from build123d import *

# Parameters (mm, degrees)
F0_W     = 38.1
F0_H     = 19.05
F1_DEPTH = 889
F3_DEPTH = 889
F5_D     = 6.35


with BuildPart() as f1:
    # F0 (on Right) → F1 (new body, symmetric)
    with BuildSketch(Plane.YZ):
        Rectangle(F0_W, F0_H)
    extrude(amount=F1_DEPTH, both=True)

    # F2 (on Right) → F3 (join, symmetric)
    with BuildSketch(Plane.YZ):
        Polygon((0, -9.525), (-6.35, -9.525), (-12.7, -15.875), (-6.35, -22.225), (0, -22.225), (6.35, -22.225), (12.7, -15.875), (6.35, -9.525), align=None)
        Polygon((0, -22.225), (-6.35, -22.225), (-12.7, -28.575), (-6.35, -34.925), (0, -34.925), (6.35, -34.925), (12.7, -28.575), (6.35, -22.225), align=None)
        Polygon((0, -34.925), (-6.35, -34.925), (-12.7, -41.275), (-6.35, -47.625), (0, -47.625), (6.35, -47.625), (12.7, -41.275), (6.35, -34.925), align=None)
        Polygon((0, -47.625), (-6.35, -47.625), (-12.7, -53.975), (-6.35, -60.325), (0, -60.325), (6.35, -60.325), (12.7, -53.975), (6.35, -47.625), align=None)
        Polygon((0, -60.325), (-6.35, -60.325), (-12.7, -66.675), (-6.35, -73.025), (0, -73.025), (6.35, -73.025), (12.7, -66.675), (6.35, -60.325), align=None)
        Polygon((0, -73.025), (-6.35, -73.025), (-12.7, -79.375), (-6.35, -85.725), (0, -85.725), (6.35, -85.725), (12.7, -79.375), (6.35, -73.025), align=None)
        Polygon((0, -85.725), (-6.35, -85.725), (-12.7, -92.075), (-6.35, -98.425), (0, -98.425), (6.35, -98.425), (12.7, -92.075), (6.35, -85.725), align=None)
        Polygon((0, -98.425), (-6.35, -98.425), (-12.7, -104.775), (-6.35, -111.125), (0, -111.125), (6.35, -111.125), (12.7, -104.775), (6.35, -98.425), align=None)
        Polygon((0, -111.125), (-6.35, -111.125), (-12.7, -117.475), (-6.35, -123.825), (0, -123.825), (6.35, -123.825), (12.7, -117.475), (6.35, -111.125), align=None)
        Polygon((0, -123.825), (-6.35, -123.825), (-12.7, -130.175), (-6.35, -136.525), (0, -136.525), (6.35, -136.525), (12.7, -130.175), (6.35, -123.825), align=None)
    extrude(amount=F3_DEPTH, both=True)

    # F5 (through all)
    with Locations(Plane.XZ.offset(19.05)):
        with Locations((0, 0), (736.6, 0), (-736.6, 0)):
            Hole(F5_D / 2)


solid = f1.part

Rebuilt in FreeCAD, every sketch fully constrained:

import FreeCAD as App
import Part
import Sketcher
Q = App.Units.Quantity

doc = App.newDocument("Part")
body = doc.addObject("PartDesign::Body", "Body")

# Sketch on YZ plane
sketch1 = body.newObject("Sketcher::SketchObject", "Sketch")
sketch1.AttachmentSupport = (doc.getObject("YZ_Plane"), [""])
sketch1.MapMode = "FlatFace"
sketch1.addGeometry(Part.LineSegment(App.Vector(-19, 10, 0), App.Vector(-19, -10, 0)), False)
sketch1.addGeometry(Part.LineSegment(App.Vector(-19, -10, 0), App.Vector(19, -10, 0)), False)
sketch1.addGeometry(Part.LineSegment(App.Vector(19, -10, 0), App.Vector(19, 10, 0)), False)
sketch1.addGeometry(Part.LineSegment(App.Vector(19, 10, 0), App.Vector(-19, 10, 0)), False)
sketch1.addConstraint(Sketcher.Constraint("Coincident", 0, 2, 1, 1))
sketch1.addConstraint(Sketcher.Constraint("Coincident", 1, 2, 2, 1))
sketch1.addConstraint(Sketcher.Constraint("Coincident", 2, 2, 3, 1))
sketch1.addConstraint(Sketcher.Constraint("Coincident", 3, 2, 0, 1))
sketch1.addConstraint(Sketcher.Constraint("Vertical", 0))
sketch1.addConstraint(Sketcher.Constraint("Horizontal", 1))
sketch1.addConstraint(Sketcher.Constraint("Vertical", 2))
sketch1.addConstraint(Sketcher.Constraint("Horizontal", 3))
sketch1.addConstraint(Sketcher.Constraint("Symmetric", 0, 2, 2, 2, -1, 1))
sketch1.addConstraint(Sketcher.Constraint("DistanceX", 1, 1, 1, 2, Q("1.5 in")))
sketch1.addConstraint(Sketcher.Constraint("DistanceY", 0, 2, 0, 1, Q("0.75 in")))
pad1 = body.newObject("PartDesign::Pad", "Pad")
pad1.Profile = sketch1
pad1.Length = Q("70 in")
pad1.Midplane = True

# Sketch on YZ plane
sketch2 = body.newObject("Sketcher::SketchObject", "Sketch001")
sketch2.AttachmentSupport = (doc.getObject("YZ_Plane"), [""])
sketch2.MapMode = "FlatFace"
sketch2.addGeometry(Part.LineSegment(App.Vector(-6, -10, 0), App.Vector(-13, -16, 0)), False)
sketch2.addGeometry(Part.LineSegment(App.Vector(-13, -16, 0), App.Vector(-6, -22, 0)), False)
sketch2.addGeometry(Part.LineSegment(App.Vector(-6, -22, 0), App.Vector(-13, -29, 0)), False)
sketch2.addGeometry(Part.LineSegment(App.Vector(-13, -29, 0), App.Vector(-6, -35, 0)), False)
sketch2.addGeometry(Part.LineSegment(App.Vector(-6, -35, 0), App.Vector(-13, -41, 0)), False)
sketch2.addGeometry(Part.LineSegment(App.Vector(-13, -41, 0), App.Vector(-6, -48, 0)), False)
sketch2.addGeometry(Part.LineSegment(App.Vector(-6, -48, 0), App.Vector(-13, -54, 0)), False)
sketch2.addGeometry(Part.LineSegment(App.Vector(-13, -54, 0), App.Vector(-6, -60, 0)), False)
sketch2.addGeometry(Part.LineSegment(App.Vector(-6, -60, 0), App.Vector(-13, -67, 0)), False)
sketch2.addGeometry(Part.LineSegment(App.Vector(-13, -67, 0), App.Vector(-6, -73, 0)), False)
sketch2.addGeometry(Part.LineSegment(App.Vector(-6, -73, 0), App.Vector(-13, -79, 0)), False)
sketch2.addGeometry(Part.LineSegment(App.Vector(-13, -79, 0), App.Vector(-6, -86, 0)), False)
sketch2.addGeometry(Part.LineSegment(App.Vector(-6, -86, 0), App.Vector(-13, -92, 0)), False)
sketch2.addGeometry(Part.LineSegment(App.Vector(-13, -92, 0), App.Vector(-6, -98, 0)), False)
sketch2.addGeometry(Part.LineSegment(App.Vector(-6, -98, 0), App.Vector(-13, -105, 0)), False)
sketch2.addGeometry(Part.LineSegment(App.Vector(-13, -105, 0), App.Vector(-6, -111, 0)), False)
sketch2.addGeometry(Part.LineSegment(App.Vector(-6, -111, 0), App.Vector(-13, -117, 0)), False)
sketch2.addGeometry(Part.LineSegment(App.Vector(-13, -117, 0), App.Vector(-6, -124, 0)), False)
sketch2.addGeometry(Part.LineSegment(App.Vector(-6, -124, 0), App.Vector(-13, -130, 0)), False)
sketch2.addGeometry(Part.LineSegment(App.Vector(-13, -130, 0), App.Vector(-6, -137, 0)), False)
sketch2.addGeometry(Part.LineSegment(App.Vector(-6, -137, 0), App.Vector(6, -137, 0)), False)
sketch2.addGeometry(Part.LineSegment(App.Vector(6, -137, 0), App.Vector(13, -130, 0)), False)
sketch2.addGeometry(Part.LineSegment(App.Vector(13, -130, 0), App.Vector(6, -124, 0)), False)
sketch2.addGeometry(Part.LineSegment(App.Vector(6, -124, 0), App.Vector(13, -117, 0)), False)
sketch2.addGeometry(Part.LineSegment(App.Vector(13, -117, 0), App.Vector(6, -111, 0)), False)
sketch2.addGeometry(Part.LineSegment(App.Vector(6, -111, 0), App.Vector(13, -105, 0)), False)
sketch2.addGeometry(Part.LineSegment(App.Vector(13, -105, 0), App.Vector(6, -98, 0)), False)
sketch2.addGeometry(Part.LineSegment(App.Vector(6, -98, 0), App.Vector(13, -92, 0)), False)
sketch2.addGeometry(Part.LineSegment(App.Vector(13, -92, 0), App.Vector(6, -86, 0)), False)
sketch2.addGeometry(Part.LineSegment(App.Vector(6, -86, 0), App.Vector(13, -79, 0)), False)
sketch2.addGeometry(Part.LineSegment(App.Vector(13, -79, 0), App.Vector(6, -73, 0)), False)
sketch2.addGeometry(Part.LineSegment(App.Vector(6, -73, 0), App.Vector(13, -67, 0)), False)
sketch2.addGeometry(Part.LineSegment(App.Vector(13, -67, 0), App.Vector(6, -60, 0)), False)
sketch2.addGeometry(Part.LineSegment(App.Vector(6, -60, 0), App.Vector(13, -54, 0)), False)
sketch2.addGeometry(Part.LineSegment(App.Vector(13, -54, 0), App.Vector(6, -48, 0)), False)
sketch2.addGeometry(Part.LineSegment(App.Vector(6, -48, 0), App.Vector(13, -41, 0)), False)
sketch2.addGeometry(Part.LineSegment(App.Vector(13, -41, 0), App.Vector(6, -35, 0)), False)
sketch2.addGeometry(Part.LineSegment(App.Vector(6, -35, 0), App.Vector(13, -29, 0)), False)
sketch2.addGeometry(Part.LineSegment(App.Vector(13, -29, 0), App.Vector(6, -22, 0)), False)
sketch2.addGeometry(Part.LineSegment(App.Vector(6, -22, 0), App.Vector(13, -16, 0)), False)
sketch2.addGeometry(Part.LineSegment(App.Vector(13, -16, 0), App.Vector(6, -10, 0)), False)
sketch2.addGeometry(Part.LineSegment(App.Vector(6, -10, 0), App.Vector(-6, -10, 0)), False)
sketch2.addConstraint(Sketcher.Constraint("Coincident", 0, 2, 1, 1))
sketch2.addConstraint(Sketcher.Constraint("Coincident", 1, 2, 2, 1))
sketch2.addConstraint(Sketcher.Constraint("Coincident", 2, 2, 3, 1))
sketch2.addConstraint(Sketcher.Constraint("Coincident", 3, 2, 4, 1))
sketch2.addConstraint(Sketcher.Constraint("Coincident", 4, 2, 5, 1))
sketch2.addConstraint(Sketcher.Constraint("Coincident", 5, 2, 6, 1))
sketch2.addConstraint(Sketcher.Constraint("Coincident", 6, 2, 7, 1))
sketch2.addConstraint(Sketcher.Constraint("Coincident", 7, 2, 8, 1))
sketch2.addConstraint(Sketcher.Constraint("Coincident", 8, 2, 9, 1))
sketch2.addConstraint(Sketcher.Constraint("Coincident", 9, 2, 10, 1))
sketch2.addConstraint(Sketcher.Constraint("Coincident", 10, 2, 11, 1))
sketch2.addConstraint(Sketcher.Constraint("Coincident", 11, 2, 12, 1))
sketch2.addConstraint(Sketcher.Constraint("Coincident", 12, 2, 13, 1))
sketch2.addConstraint(Sketcher.Constraint("Coincident", 13, 2, 14, 1))
sketch2.addConstraint(Sketcher.Constraint("Coincident", 14, 2, 15, 1))
sketch2.addConstraint(Sketcher.Constraint("Coincident", 15, 2, 16, 1))
sketch2.addConstraint(Sketcher.Constraint("Coincident", 16, 2, 17, 1))
sketch2.addConstraint(Sketcher.Constraint("Coincident", 17, 2, 18, 1))
sketch2.addConstraint(Sketcher.Constraint("Coincident", 18, 2, 19, 1))
sketch2.addConstraint(Sketcher.Constraint("Coincident", 19, 2, 20, 1))
sketch2.addConstraint(Sketcher.Constraint("Coincident", 20, 2, 21, 1))
sketch2.addConstraint(Sketcher.Constraint("Coincident", 21, 2, 22, 1))
sketch2.addConstraint(Sketcher.Constraint("Coincident", 22, 2, 23, 1))
sketch2.addConstraint(Sketcher.Constraint("Coincident", 23, 2, 24, 1))
sketch2.addConstraint(Sketcher.Constraint("Coincident", 24, 2, 25, 1))
sketch2.addConstraint(Sketcher.Constraint("Coincident", 25, 2, 26, 1))
sketch2.addConstraint(Sketcher.Constraint("Coincident", 26, 2, 27, 1))
sketch2.addConstraint(Sketcher.Constraint("Coincident", 27, 2, 28, 1))
sketch2.addConstraint(Sketcher.Constraint("Coincident", 28, 2, 29, 1))
sketch2.addConstraint(Sketcher.Constraint("Coincident", 29, 2, 30, 1))
sketch2.addConstraint(Sketcher.Constraint("Coincident", 30, 2, 31, 1))
sketch2.addConstraint(Sketcher.Constraint("Coincident", 31, 2, 32, 1))
sketch2.addConstraint(Sketcher.Constraint("Coincident", 32, 2, 33, 1))
sketch2.addConstraint(Sketcher.Constraint("Coincident", 33, 2, 34, 1))
sketch2.addConstraint(Sketcher.Constraint("Coincident", 34, 2, 35, 1))
sketch2.addConstraint(Sketcher.Constraint("Coincident", 35, 2, 36, 1))
sketch2.addConstraint(Sketcher.Constraint("Coincident", 36, 2, 37, 1))
sketch2.addConstraint(Sketcher.Constraint("Coincident", 37, 2, 38, 1))
sketch2.addConstraint(Sketcher.Constraint("Coincident", 38, 2, 39, 1))
sketch2.addConstraint(Sketcher.Constraint("Coincident", 39, 2, 40, 1))
sketch2.addConstraint(Sketcher.Constraint("Coincident", 40, 2, 41, 1))
sketch2.addConstraint(Sketcher.Constraint("Coincident", 41, 2, 0, 1))
sketch2.addConstraint(Sketcher.Constraint("Horizontal", 20))
sketch2.addConstraint(Sketcher.Constraint("Horizontal", 41))
sketch2.addConstraint(Sketcher.Constraint("Symmetric", 18, 2, 21, 2, -2))
sketch2.addConstraint(Sketcher.Constraint("Symmetric", 17, 2, 22, 2, -2))
sketch2.addConstraint(Sketcher.Constraint("Symmetric", 16, 2, 23, 2, -2))
sketch2.addConstraint(Sketcher.Constraint("Symmetric", 15, 2, 24, 2, -2))
sketch2.addConstraint(Sketcher.Constraint("Symmetric", 14, 2, 25, 2, -2))
sketch2.addConstraint(Sketcher.Constraint("Symmetric", 13, 2, 26, 2, -2))
sketch2.addConstraint(Sketcher.Constraint("Symmetric", 12, 2, 27, 2, -2))
sketch2.addConstraint(Sketcher.Constraint("Symmetric", 11, 2, 28, 2, -2))
sketch2.addConstraint(Sketcher.Constraint("Symmetric", 10, 2, 29, 2, -2))
sketch2.addConstraint(Sketcher.Constraint("Symmetric", 9, 2, 30, 2, -2))
sketch2.addConstraint(Sketcher.Constraint("Symmetric", 8, 2, 31, 2, -2))
sketch2.addConstraint(Sketcher.Constraint("Symmetric", 7, 2, 32, 2, -2))
sketch2.addConstraint(Sketcher.Constraint("Symmetric", 6, 2, 33, 2, -2))
sketch2.addConstraint(Sketcher.Constraint("Symmetric", 5, 2, 34, 2, -2))
sketch2.addConstraint(Sketcher.Constraint("Symmetric", 4, 2, 35, 2, -2))
sketch2.addConstraint(Sketcher.Constraint("Symmetric", 3, 2, 36, 2, -2))
sketch2.addConstraint(Sketcher.Constraint("Symmetric", 2, 2, 37, 2, -2))
sketch2.addConstraint(Sketcher.Constraint("Symmetric", 1, 2, 38, 2, -2))
sketch2.addConstraint(Sketcher.Constraint("Symmetric", 0, 2, 39, 2, -2))
sketch2.addConstraint(Sketcher.Constraint("Perpendicular", 0, 1))
sketch2.addConstraint(Sketcher.Constraint("Perpendicular", 1, 2))
sketch2.addConstraint(Sketcher.Constraint("Perpendicular", 2, 3))
sketch2.addConstraint(Sketcher.Constraint("Perpendicular", 3, 4))
sketch2.addConstraint(Sketcher.Constraint("Perpendicular", 4, 5))
sketch2.addConstraint(Sketcher.Constraint("Perpendicular", 5, 6))
sketch2.addConstraint(Sketcher.Constraint("Perpendicular", 6, 7))
sketch2.addConstraint(Sketcher.Constraint("Perpendicular", 7, 8))
sketch2.addConstraint(Sketcher.Constraint("Perpendicular", 8, 9))
sketch2.addConstraint(Sketcher.Constraint("Perpendicular", 9, 10))
sketch2.addConstraint(Sketcher.Constraint("Perpendicular", 10, 11))
sketch2.addConstraint(Sketcher.Constraint("Perpendicular", 11, 12))
sketch2.addConstraint(Sketcher.Constraint("Perpendicular", 12, 13))
sketch2.addConstraint(Sketcher.Constraint("Perpendicular", 13, 14))
sketch2.addConstraint(Sketcher.Constraint("Perpendicular", 14, 15))
sketch2.addConstraint(Sketcher.Constraint("Perpendicular", 15, 16))
sketch2.addConstraint(Sketcher.Constraint("Perpendicular", 16, 17))
sketch2.addConstraint(Sketcher.Constraint("Perpendicular", 17, 18))
sketch2.addConstraint(Sketcher.Constraint("Perpendicular", 18, 19))
sketch2.addConstraint(Sketcher.Constraint("Perpendicular", 19, 21))
sketch2.addConstraint(Sketcher.Constraint("Perpendicular", 21, 22))
sketch2.addConstraint(Sketcher.Constraint("Perpendicular", 39, 40))
sketch2.addConstraint(Sketcher.Constraint("Vertical", 0, 2, 2, 2))
sketch2.addConstraint(Sketcher.Constraint("Vertical", 1, 2, 3, 2))
sketch2.addConstraint(Sketcher.Constraint("Vertical", 2, 2, 4, 2))
sketch2.addConstraint(Sketcher.Constraint("Vertical", 3, 2, 5, 2))
sketch2.addConstraint(Sketcher.Constraint("Vertical", 4, 2, 6, 2))
sketch2.addConstraint(Sketcher.Constraint("Vertical", 5, 2, 7, 2))
sketch2.addConstraint(Sketcher.Constraint("Vertical", 6, 2, 8, 2))
sketch2.addConstraint(Sketcher.Constraint("Vertical", 7, 2, 9, 2))
sketch2.addConstraint(Sketcher.Constraint("Vertical", 8, 2, 10, 2))
sketch2.addConstraint(Sketcher.Constraint("Vertical", 9, 2, 11, 2))
sketch2.addConstraint(Sketcher.Constraint("Vertical", 10, 2, 12, 2))
sketch2.addConstraint(Sketcher.Constraint("Vertical", 11, 2, 13, 2))
sketch2.addConstraint(Sketcher.Constraint("Vertical", 12, 2, 14, 2))
sketch2.addConstraint(Sketcher.Constraint("Vertical", 13, 2, 15, 2))
sketch2.addConstraint(Sketcher.Constraint("Vertical", 14, 2, 16, 2))
sketch2.addConstraint(Sketcher.Constraint("Vertical", 15, 2, 17, 2))
sketch2.addConstraint(Sketcher.Constraint("Vertical", 16, 2, 18, 2))
sketch2.addConstraint(Sketcher.Constraint("Vertical", 17, 2, 19, 2))
sketch2.addConstraint(Sketcher.Constraint("Vertical", 38, 2, 40, 2))
sketch2.addConstraint(Sketcher.Constraint("DistanceX", 20, 1, 20, 2, Q("0.5 in")))
sketch2.addConstraint(Sketcher.Constraint("DistanceY", 4, 2, 0, 2, Q("1 in")))
sketch2.addConstraint(Sketcher.Constraint("DistanceY", 0, 2, -1, 1, Q("0.625 in")))
pad2 = body.newObject("PartDesign::Pad", "Pad001")
pad2.Profile = sketch2
pad2.Length = Q("70 in")
pad2.Midplane = True

# Sketch on XZ plane
sketch3 = body.newObject("Sketcher::SketchObject", "Sketch002")
sketch3.AttachmentSupport = (doc.getObject("XZ_Plane"), [""])
sketch3.MapMode = "FlatFace"
sketch3.AttachmentOffset = App.Placement(App.Vector(0, 0, 0.75 * 25.4), App.Rotation())
sketch3.addGeometry(Part.Circle(App.Vector(0, 0, 0), App.Vector(0, 0, 1), 3.2), False)
sketch3.addGeometry(Part.Circle(App.Vector(736.6, 0, 0), App.Vector(0, 0, 1), 3.2), False)
sketch3.addGeometry(Part.Circle(App.Vector(-736.6, 0, 0), App.Vector(0, 0, 1), 3.2), False)
sketch3.addConstraint(Sketcher.Constraint("Coincident", 0, 3, -1, 1))
sketch3.addConstraint(Sketcher.Constraint("Equal", 0, 1))
sketch3.addConstraint(Sketcher.Constraint("Equal", 1, 2))
sketch3.addConstraint(Sketcher.Constraint("Symmetric", 1, 3, 2, 3, -1, 1))
sketch3.addConstraint(Sketcher.Constraint("PointOnObject", 1, 3, -1))
sketch3.addConstraint(Sketcher.Constraint("Diameter", 0, Q("0.25 in")))
sketch3.addConstraint(Sketcher.Constraint("DistanceX", -1, 1, 1, 3, Q("29 in")))
doc.recompute()
hole = body.newObject("PartDesign::Hole", "Hole")
hole.Profile = sketch3
hole.ThreadType = "None"
hole.Diameter = Q("0.25 in")
hole.DepthType = "ThroughAll"

doc.recompute()
